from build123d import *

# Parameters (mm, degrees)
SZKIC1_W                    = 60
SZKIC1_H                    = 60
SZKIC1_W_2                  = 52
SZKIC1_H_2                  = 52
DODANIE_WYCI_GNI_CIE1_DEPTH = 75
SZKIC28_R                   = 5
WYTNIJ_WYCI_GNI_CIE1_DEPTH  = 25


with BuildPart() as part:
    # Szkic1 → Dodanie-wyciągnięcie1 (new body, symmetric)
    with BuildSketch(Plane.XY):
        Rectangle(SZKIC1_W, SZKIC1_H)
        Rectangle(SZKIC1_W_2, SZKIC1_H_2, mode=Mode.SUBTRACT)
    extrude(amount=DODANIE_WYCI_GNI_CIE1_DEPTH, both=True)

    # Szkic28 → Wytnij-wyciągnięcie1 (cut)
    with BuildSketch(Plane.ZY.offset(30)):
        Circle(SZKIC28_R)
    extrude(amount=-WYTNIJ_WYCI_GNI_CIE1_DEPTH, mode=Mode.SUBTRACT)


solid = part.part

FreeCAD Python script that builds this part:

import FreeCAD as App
import Part
import Sketcher

V = App.Vector
Q = App.Units.Quantity


def add_polygon(sketch, points):
    """Adds a closed chain of lines whose ends are joined by coincident constraints."""
    first, n = sketch.GeometryCount, len(points)
    for a, b in zip(points, points[1:] + points[:1]):
        sketch.addGeometry(Part.LineSegment(App.Vector(*a, 0), App.Vector(*b, 0)), False)
    for i in range(n):
        sketch.addConstraint(Sketcher.Constraint("Coincident", first + i, 2, first + (i + 1) % n, 1))

doc = App.newDocument("Part")
body = doc.addObject("PartDesign::Body", "Body")

sketch1 = body.newObject("Sketcher::SketchObject", "Sketch")
sketch1.AttachmentSupport = (doc.getObject("XY_Plane"), [""])
sketch1.MapMode = "FlatFace"
add_polygon(sketch1, [(-30, 30), (-30, -30), (30, -30), (30, 30)])
add_polygon(sketch1, [(26, -26), (-26, -26), (-26, 26), (26, 26)])
sketch1.addConstraint([
    Sketcher.Constraint("Vertical", 0),
    Sketcher.Constraint("Horizontal", 1),
    Sketcher.Constraint("Vertical", 2),
    Sketcher.Constraint("Horizontal", 3),
    Sketcher.Constraint("Horizontal", 4),
    Sketcher.Constraint("Vertical", 5),
    Sketcher.Constraint("Horizontal", 6),
    Sketcher.Constraint("Vertical", 7),
    Sketcher.Constraint("Symmetric", 0, 2, 2, 2, -1, 1),
    Sketcher.Constraint("Symmetric", 4, 2, 6, 2, -1, 1),
    Sketcher.Constraint("Equal", 3, 0),
    Sketcher.Constraint("Equal", 6, 5),
    Sketcher.Constraint("DistanceX", 1, 1, 1, 2, Q("60 mm")),
    Sketcher.Constraint("DistanceX", 4, 2, 4, 1, Q("52 mm")),
])
pad1 = body.newObject("PartDesign::Pad", "Pad")
pad1.Profile = sketch1
pad1.Length = 150
pad1.Midplane = True

sketch2 = body.newObject("Sketcher::SketchObject", "Sketch001")
sketch2.AttachmentSupport = (doc.getObject("YZ_Plane"), [""])
sketch2.MapMode = "FlatFace"
sketch2.AttachmentOffset = App.Placement(V(0, 0, -30), App.Rotation())
sketch2.addGeometry(Part.Circle(V(0, 0, 0), V(0, 0, 1), 5), False)
sketch2.addConstraint([
    Sketcher.Constraint("Coincident", 0, 3, -1, 1),
    Sketcher.Constraint("Diameter", 0, Q("10 mm")),
])
pocket1 = body.newObject("PartDesign::Pocket", "Pocket")
pocket1.Profile = sketch2
pocket1.Length = 25
pocket1.Reversed = True

doc.recompute()
